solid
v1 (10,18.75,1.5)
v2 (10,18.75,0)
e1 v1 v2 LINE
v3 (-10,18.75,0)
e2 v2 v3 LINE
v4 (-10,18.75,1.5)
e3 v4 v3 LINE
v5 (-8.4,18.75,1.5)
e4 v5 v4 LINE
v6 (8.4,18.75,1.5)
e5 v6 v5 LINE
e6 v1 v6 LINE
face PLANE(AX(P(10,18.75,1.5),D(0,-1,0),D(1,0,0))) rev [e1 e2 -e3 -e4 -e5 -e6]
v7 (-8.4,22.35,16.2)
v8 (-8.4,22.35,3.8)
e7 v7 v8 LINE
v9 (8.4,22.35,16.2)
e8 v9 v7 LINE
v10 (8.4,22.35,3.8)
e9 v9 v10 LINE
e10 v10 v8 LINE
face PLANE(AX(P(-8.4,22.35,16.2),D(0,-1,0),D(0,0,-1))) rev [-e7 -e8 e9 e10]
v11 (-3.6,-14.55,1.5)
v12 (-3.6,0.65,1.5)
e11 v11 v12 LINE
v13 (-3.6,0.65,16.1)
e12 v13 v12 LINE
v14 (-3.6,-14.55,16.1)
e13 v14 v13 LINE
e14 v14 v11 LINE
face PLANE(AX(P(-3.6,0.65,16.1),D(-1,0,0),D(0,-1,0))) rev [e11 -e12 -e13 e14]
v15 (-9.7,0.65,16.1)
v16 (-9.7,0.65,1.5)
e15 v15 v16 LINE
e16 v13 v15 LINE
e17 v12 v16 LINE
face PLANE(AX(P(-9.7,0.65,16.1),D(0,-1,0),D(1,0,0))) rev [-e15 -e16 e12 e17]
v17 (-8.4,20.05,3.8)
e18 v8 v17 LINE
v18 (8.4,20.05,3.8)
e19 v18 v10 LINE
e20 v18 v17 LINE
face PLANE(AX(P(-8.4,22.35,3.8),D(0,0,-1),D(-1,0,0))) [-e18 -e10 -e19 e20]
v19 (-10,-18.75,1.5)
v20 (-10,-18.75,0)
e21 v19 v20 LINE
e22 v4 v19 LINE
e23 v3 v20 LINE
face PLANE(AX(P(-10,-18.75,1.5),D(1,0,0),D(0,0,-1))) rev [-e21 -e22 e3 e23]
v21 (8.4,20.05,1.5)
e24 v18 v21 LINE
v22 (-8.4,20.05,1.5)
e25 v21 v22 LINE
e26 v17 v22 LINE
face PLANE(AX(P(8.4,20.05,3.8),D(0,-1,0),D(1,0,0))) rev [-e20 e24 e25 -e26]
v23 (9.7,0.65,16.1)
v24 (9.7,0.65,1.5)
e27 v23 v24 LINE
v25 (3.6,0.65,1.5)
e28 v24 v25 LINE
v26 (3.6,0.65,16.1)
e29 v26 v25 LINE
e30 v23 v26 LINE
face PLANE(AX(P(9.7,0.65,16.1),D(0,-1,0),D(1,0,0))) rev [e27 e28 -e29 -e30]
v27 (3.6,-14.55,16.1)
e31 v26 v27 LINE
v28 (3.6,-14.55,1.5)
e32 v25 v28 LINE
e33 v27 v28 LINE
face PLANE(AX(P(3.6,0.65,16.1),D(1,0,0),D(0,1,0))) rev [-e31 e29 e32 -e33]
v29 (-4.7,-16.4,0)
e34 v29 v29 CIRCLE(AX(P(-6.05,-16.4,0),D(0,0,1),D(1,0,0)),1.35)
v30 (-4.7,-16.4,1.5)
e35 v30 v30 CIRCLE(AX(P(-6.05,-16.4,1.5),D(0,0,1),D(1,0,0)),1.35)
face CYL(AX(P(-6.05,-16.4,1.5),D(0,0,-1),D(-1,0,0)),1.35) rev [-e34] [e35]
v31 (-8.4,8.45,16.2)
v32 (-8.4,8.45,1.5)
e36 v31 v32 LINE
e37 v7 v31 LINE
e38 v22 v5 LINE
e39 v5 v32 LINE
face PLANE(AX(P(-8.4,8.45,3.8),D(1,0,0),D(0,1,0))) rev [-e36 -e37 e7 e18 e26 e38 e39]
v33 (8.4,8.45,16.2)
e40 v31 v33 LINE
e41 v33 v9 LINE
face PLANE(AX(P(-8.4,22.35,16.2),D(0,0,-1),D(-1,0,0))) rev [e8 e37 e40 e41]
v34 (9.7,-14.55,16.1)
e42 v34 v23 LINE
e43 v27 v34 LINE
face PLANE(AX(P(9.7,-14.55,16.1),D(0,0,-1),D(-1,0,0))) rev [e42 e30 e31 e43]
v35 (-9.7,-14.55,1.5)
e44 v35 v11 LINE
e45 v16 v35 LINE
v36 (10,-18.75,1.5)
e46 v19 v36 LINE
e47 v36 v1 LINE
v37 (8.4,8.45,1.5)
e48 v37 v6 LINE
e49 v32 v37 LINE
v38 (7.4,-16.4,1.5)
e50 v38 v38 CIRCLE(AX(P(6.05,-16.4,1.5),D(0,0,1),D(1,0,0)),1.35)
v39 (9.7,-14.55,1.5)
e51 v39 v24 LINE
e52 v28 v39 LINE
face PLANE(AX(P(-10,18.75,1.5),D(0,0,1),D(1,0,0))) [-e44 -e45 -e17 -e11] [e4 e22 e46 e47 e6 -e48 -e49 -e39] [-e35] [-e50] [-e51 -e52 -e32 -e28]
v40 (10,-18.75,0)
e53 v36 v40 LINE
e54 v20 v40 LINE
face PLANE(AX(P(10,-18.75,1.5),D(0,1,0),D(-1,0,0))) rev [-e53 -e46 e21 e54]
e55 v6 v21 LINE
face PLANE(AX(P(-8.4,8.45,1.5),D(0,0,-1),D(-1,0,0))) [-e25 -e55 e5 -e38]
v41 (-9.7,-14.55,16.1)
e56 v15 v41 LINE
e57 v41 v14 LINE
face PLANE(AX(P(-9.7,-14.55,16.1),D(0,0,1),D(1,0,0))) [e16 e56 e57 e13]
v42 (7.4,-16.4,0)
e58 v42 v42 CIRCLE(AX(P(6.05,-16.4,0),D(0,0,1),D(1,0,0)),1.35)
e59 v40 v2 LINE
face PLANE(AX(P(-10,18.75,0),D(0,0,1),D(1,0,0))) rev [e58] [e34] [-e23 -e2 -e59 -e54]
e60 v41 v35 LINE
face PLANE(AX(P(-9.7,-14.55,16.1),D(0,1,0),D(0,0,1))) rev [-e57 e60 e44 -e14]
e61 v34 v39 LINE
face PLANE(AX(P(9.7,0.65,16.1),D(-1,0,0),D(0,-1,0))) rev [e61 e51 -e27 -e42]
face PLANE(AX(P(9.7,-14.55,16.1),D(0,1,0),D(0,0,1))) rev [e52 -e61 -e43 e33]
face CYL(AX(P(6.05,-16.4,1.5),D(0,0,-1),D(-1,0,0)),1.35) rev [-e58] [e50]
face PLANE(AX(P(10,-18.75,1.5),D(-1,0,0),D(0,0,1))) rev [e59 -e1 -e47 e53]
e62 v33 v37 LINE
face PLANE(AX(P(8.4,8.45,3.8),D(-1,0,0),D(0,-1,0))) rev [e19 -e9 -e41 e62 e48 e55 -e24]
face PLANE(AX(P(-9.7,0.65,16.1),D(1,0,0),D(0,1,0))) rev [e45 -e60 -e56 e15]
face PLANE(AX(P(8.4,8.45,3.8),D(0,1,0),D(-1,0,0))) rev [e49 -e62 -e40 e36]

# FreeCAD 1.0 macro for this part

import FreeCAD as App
import Part
import Sketcher
from FreeCAD import Vector
Q = App.Units.Quantity

doc = App.newDocument("Part")
body = doc.addObject("PartDesign::Body", "Body")

# Sketch on XY plane
sketch1 = body.newObject("Sketcher::SketchObject", "Sketch")
sketch1.AttachmentSupport = (doc.getObject("XY_Plane"), [""])
sketch1.MapMode = "FlatFace"
sketch1.addGeometry([
    Part.LineSegment(Vector(-10, 18.8, 0), Vector(-10, -18.8, 0)),  # 0
    Part.LineSegment(Vector(-10, -18.8, 0), Vector(10, -18.8, 0)),  # 1
    Part.LineSegment(Vector(10, -18.8, 0), Vector(10, 18.8, 0)),  # 2
    Part.LineSegment(Vector(10, 18.8, 0), Vector(-10, 18.8, 0)),  # 3
    Part.Circle(Vector(-6, -16.4, 0), Vector(0, 0, 1), 1.4),  # 4
    Part.Circle(Vector(6, -16.4, 0), Vector(0, 0, 1), 1.4),  # 5
], False)
sketch1.addConstraint([
    Sketcher.Constraint("Coincident", 0, 2, 1, 1),
    Sketcher.Constraint("Coincident", 1, 2, 2, 1),
    Sketcher.Constraint("Coincident", 2, 2, 3, 1),
    Sketcher.Constraint("Coincident", 3, 2, 0, 1),
    Sketcher.Constraint("Vertical", 0),
    Sketcher.Constraint("Horizontal", 1),
    Sketcher.Constraint("Vertical", 2),
    Sketcher.Constraint("Horizontal", 3),
    Sketcher.Constraint("Equal", 4, 5),
    Sketcher.Constraint("Symmetric", 0, 2, 2, 2, -1, 1),
    Sketcher.Constraint("Symmetric", 4, 3, 5, 3, -2),
    Sketcher.Constraint("Diameter", 4, Q("2.7 mm")),
    Sketcher.Constraint("DistanceX", 1, 1, 1, 2, Q("20 mm")),
    Sketcher.Constraint("DistanceY", 0, 2, 0, 1, Q("37.5 mm")),
    Sketcher.Constraint("DistanceY", 4, 3, -1, 1, Q("16.4 mm")),
    Sketcher.Constraint("DistanceX", 4, 3, 5, 3, Q("12.1 mm")),
])
pad1 = body.newObject("PartDesign::Pad", "Pad")
pad1.Profile = sketch1
pad1.Length = 1.5

# Sketch on XY plane
sketch2 = body.newObject("Sketcher::SketchObject", "Sketch001")
sketch2.AttachmentSupport = (doc.getObject("XY_Plane"), [""])
sketch2.MapMode = "FlatFace"
sketch2.AttachmentOffset = App.Placement(Vector(0, 0, 1.5), App.Rotation())
sketch2.addGeometry([
    Part.LineSegment(Vector(-8, 20, 0), Vector(-8, 8, 0)),
    Part.LineSegment(Vector(-8, 8, 0), Vector(8, 8, 0)),
    Part.LineSegment(Vector(8, 8, 0), Vector(8, 20, 0)),
    Part.LineSegment(Vector(8, 20, 0), Vector(-8, 20, 0)),
], False)
sketch2.addConstraint([
    Sketcher.Constraint("Coincident", 0, 2, 1, 1),
    Sketcher.Constraint("Coincident", 1, 2, 2, 1),
    Sketcher.Constraint("Coincident", 2, 2, 3, 1),
    Sketcher.Constraint("Coincident", 3, 2, 0, 1),
    Sketcher.Constraint("Vertical", 0),
    Sketcher.Constraint("Horizontal", 1),
    Sketcher.Constraint("Vertical", 2),
    Sketcher.Constraint("Horizontal", 3),
    Sketcher.Constraint("DistanceX", 1, 1, 1, 2, Q("16.8 mm")),
    Sketcher.Constraint("DistanceY", 0, 2, 0, 1, Q("11.6 mm")),
    Sketcher.Constraint("DistanceX", 0, 2, -1, 1, Q("8.4 mm")),
    Sketcher.Constraint("DistanceY", -1, 1, 0, 2, Q("8.45 mm")),
])
pad2 = body.newObject("PartDesign::Pad", "Pad001")
pad2.Profile = sketch2
pad2.Length = 2.3

# Sketch on XY plane
sketch3 = body.newObject("Sketcher::SketchObject", "Sketch002")
sketch3.AttachmentSupport = (doc.getObject("XY_Plane"), [""])
sketch3.MapMode = "FlatFace"
sketch3.AttachmentOffset = App.Placement(Vector(0, 0, 3.8), App.Rotation())
sketch3.addGeometry([
    Part.LineSegment(Vector(-8, 22, 0), Vector(-8, 8, 0)),
    Part.LineSegment(Vector(-8, 8, 0), Vector(8, 8, 0)),
    Part.LineSegment(Vector(8, 8, 0), Vector(8, 22, 0)),
    Part.LineSegment(Vector(8, 22, 0), Vector(-8, 22, 0)),
], False)
sketch3.addConstraint([
    Sketcher.Constraint("Coincident", 0, 2, 1, 1),
    Sketcher.Constraint("Coincident", 1, 2, 2, 1),
    Sketcher.Constraint("Coincident", 2, 2, 3, 1),
    Sketcher.Constraint("Coincident", 3, 2, 0, 1),
    Sketcher.Constraint("Vertical", 0),
    Sketcher.Constraint("Horizontal", 1),
    Sketcher.Constraint("Vertical", 2),
    Sketcher.Constraint("Horizontal", 3),
    Sketcher.Constraint("DistanceX", 1, 1, 1, 2, Q("16.8 mm")),
    Sketcher.Constraint("DistanceY", 0, 2, 0, 1, Q("13.9 mm")),
    Sketcher.Constraint("DistanceX", 0, 2, -1, 1, Q("8.4 mm")),
    Sketcher.Constraint("DistanceY", -1, 1, 0, 2, Q("8.45 mm")),
])
pad3 = body.newObject("PartDesign::Pad", "Pad002")
pad3.Profile = sketch3
pad3.Length = 12.4

# Sketch on XY plane
sketch4 = body.newObject("Sketcher::SketchObject", "Sketch003")
sketch4.AttachmentSupport = (doc.getObject("XY_Plane"), [""])
sketch4.MapMode = "FlatFace"
sketch4.AttachmentOffset = App.Placement(Vector(0, 0, 1.5), App.Rotation())
sketch4.addGeometry([
    Part.LineSegment(Vector(-10, 1, 0), Vector(-10, -15, 0)),  # 0
    Part.LineSegment(Vector(-10, -15, 0), Vector(-4, -15, 0)),  # 1
    Part.LineSegment(Vector(-4, -15, 0), Vector(-4, 1, 0)),  # 2
    Part.LineSegment(Vector(-4, 1, 0), Vector(-10, 1, 0)),  # 3
    Part.LineSegment(Vector(4, 1, 0), Vector(4, -15, 0)),  # 4
    Part.LineSegment(Vector(4, -15, 0), Vector(10, -15, 0)),  # 5
    Part.LineSegment(Vector(10, -15, 0), Vector(10, 1, 0)),  # 6
    Part.LineSegment(Vector(10, 1, 0), Vector(4, 1, 0)),  # 7
], False)
sketch4.addConstraint([
    Sketcher.Constraint("Coincident", 0, 2, 1, 1),
    Sketcher.Constraint("Coincident", 1, 2, 2, 1),
    Sketcher.Constraint("Coincident", 2, 2, 3, 1),
    Sketcher.Constraint("Coincident", 3, 2, 0, 1),
    Sketcher.Constraint("Coincident", 4, 2, 5, 1),
    Sketcher.Constraint("Coincident", 5, 2, 6, 1),
    Sketcher.Constraint("Coincident", 6, 2, 7, 1),
    Sketcher.Constraint("Coincident", 7, 2, 4, 1),
    Sketcher.Constraint("Vertical", 0),
    Sketcher.Constraint("Horizontal", 1),
    Sketcher.Constraint("Vertical", 2),
    Sketcher.Constraint("Horizontal", 3),
    Sketcher.Constraint("Vertical", 4),
    Sketcher.Constraint("Horizontal", 5),
    Sketcher.Constraint("Vertical", 6),
    Sketcher.Constraint("Horizontal", 7),
    Sketcher.Constraint("Symmetric", 1, 2, 4, 2, -2),
    Sketcher.Constraint("Symmetric", 3, 2, 6, 2, -2),
    Sketcher.Constraint("DistanceX", 1, 1, 1, 2, Q("6.1 mm")),
    Sketcher.Constraint("DistanceY", 0, 2, 0, 1, Q("15.2 mm")),
    Sketcher.Constraint("DistanceX", 0, 2, -1, 1, Q("9.7 mm")),
    Sketcher.Constraint("DistanceY", 0, 2, -1, 1, Q("14.55 mm")),
])
pad4 = body.newObject("PartDesign::Pad", "Pad003")
pad4.Profile = sketch4
pad4.Length = 14.6

doc.recompute()
